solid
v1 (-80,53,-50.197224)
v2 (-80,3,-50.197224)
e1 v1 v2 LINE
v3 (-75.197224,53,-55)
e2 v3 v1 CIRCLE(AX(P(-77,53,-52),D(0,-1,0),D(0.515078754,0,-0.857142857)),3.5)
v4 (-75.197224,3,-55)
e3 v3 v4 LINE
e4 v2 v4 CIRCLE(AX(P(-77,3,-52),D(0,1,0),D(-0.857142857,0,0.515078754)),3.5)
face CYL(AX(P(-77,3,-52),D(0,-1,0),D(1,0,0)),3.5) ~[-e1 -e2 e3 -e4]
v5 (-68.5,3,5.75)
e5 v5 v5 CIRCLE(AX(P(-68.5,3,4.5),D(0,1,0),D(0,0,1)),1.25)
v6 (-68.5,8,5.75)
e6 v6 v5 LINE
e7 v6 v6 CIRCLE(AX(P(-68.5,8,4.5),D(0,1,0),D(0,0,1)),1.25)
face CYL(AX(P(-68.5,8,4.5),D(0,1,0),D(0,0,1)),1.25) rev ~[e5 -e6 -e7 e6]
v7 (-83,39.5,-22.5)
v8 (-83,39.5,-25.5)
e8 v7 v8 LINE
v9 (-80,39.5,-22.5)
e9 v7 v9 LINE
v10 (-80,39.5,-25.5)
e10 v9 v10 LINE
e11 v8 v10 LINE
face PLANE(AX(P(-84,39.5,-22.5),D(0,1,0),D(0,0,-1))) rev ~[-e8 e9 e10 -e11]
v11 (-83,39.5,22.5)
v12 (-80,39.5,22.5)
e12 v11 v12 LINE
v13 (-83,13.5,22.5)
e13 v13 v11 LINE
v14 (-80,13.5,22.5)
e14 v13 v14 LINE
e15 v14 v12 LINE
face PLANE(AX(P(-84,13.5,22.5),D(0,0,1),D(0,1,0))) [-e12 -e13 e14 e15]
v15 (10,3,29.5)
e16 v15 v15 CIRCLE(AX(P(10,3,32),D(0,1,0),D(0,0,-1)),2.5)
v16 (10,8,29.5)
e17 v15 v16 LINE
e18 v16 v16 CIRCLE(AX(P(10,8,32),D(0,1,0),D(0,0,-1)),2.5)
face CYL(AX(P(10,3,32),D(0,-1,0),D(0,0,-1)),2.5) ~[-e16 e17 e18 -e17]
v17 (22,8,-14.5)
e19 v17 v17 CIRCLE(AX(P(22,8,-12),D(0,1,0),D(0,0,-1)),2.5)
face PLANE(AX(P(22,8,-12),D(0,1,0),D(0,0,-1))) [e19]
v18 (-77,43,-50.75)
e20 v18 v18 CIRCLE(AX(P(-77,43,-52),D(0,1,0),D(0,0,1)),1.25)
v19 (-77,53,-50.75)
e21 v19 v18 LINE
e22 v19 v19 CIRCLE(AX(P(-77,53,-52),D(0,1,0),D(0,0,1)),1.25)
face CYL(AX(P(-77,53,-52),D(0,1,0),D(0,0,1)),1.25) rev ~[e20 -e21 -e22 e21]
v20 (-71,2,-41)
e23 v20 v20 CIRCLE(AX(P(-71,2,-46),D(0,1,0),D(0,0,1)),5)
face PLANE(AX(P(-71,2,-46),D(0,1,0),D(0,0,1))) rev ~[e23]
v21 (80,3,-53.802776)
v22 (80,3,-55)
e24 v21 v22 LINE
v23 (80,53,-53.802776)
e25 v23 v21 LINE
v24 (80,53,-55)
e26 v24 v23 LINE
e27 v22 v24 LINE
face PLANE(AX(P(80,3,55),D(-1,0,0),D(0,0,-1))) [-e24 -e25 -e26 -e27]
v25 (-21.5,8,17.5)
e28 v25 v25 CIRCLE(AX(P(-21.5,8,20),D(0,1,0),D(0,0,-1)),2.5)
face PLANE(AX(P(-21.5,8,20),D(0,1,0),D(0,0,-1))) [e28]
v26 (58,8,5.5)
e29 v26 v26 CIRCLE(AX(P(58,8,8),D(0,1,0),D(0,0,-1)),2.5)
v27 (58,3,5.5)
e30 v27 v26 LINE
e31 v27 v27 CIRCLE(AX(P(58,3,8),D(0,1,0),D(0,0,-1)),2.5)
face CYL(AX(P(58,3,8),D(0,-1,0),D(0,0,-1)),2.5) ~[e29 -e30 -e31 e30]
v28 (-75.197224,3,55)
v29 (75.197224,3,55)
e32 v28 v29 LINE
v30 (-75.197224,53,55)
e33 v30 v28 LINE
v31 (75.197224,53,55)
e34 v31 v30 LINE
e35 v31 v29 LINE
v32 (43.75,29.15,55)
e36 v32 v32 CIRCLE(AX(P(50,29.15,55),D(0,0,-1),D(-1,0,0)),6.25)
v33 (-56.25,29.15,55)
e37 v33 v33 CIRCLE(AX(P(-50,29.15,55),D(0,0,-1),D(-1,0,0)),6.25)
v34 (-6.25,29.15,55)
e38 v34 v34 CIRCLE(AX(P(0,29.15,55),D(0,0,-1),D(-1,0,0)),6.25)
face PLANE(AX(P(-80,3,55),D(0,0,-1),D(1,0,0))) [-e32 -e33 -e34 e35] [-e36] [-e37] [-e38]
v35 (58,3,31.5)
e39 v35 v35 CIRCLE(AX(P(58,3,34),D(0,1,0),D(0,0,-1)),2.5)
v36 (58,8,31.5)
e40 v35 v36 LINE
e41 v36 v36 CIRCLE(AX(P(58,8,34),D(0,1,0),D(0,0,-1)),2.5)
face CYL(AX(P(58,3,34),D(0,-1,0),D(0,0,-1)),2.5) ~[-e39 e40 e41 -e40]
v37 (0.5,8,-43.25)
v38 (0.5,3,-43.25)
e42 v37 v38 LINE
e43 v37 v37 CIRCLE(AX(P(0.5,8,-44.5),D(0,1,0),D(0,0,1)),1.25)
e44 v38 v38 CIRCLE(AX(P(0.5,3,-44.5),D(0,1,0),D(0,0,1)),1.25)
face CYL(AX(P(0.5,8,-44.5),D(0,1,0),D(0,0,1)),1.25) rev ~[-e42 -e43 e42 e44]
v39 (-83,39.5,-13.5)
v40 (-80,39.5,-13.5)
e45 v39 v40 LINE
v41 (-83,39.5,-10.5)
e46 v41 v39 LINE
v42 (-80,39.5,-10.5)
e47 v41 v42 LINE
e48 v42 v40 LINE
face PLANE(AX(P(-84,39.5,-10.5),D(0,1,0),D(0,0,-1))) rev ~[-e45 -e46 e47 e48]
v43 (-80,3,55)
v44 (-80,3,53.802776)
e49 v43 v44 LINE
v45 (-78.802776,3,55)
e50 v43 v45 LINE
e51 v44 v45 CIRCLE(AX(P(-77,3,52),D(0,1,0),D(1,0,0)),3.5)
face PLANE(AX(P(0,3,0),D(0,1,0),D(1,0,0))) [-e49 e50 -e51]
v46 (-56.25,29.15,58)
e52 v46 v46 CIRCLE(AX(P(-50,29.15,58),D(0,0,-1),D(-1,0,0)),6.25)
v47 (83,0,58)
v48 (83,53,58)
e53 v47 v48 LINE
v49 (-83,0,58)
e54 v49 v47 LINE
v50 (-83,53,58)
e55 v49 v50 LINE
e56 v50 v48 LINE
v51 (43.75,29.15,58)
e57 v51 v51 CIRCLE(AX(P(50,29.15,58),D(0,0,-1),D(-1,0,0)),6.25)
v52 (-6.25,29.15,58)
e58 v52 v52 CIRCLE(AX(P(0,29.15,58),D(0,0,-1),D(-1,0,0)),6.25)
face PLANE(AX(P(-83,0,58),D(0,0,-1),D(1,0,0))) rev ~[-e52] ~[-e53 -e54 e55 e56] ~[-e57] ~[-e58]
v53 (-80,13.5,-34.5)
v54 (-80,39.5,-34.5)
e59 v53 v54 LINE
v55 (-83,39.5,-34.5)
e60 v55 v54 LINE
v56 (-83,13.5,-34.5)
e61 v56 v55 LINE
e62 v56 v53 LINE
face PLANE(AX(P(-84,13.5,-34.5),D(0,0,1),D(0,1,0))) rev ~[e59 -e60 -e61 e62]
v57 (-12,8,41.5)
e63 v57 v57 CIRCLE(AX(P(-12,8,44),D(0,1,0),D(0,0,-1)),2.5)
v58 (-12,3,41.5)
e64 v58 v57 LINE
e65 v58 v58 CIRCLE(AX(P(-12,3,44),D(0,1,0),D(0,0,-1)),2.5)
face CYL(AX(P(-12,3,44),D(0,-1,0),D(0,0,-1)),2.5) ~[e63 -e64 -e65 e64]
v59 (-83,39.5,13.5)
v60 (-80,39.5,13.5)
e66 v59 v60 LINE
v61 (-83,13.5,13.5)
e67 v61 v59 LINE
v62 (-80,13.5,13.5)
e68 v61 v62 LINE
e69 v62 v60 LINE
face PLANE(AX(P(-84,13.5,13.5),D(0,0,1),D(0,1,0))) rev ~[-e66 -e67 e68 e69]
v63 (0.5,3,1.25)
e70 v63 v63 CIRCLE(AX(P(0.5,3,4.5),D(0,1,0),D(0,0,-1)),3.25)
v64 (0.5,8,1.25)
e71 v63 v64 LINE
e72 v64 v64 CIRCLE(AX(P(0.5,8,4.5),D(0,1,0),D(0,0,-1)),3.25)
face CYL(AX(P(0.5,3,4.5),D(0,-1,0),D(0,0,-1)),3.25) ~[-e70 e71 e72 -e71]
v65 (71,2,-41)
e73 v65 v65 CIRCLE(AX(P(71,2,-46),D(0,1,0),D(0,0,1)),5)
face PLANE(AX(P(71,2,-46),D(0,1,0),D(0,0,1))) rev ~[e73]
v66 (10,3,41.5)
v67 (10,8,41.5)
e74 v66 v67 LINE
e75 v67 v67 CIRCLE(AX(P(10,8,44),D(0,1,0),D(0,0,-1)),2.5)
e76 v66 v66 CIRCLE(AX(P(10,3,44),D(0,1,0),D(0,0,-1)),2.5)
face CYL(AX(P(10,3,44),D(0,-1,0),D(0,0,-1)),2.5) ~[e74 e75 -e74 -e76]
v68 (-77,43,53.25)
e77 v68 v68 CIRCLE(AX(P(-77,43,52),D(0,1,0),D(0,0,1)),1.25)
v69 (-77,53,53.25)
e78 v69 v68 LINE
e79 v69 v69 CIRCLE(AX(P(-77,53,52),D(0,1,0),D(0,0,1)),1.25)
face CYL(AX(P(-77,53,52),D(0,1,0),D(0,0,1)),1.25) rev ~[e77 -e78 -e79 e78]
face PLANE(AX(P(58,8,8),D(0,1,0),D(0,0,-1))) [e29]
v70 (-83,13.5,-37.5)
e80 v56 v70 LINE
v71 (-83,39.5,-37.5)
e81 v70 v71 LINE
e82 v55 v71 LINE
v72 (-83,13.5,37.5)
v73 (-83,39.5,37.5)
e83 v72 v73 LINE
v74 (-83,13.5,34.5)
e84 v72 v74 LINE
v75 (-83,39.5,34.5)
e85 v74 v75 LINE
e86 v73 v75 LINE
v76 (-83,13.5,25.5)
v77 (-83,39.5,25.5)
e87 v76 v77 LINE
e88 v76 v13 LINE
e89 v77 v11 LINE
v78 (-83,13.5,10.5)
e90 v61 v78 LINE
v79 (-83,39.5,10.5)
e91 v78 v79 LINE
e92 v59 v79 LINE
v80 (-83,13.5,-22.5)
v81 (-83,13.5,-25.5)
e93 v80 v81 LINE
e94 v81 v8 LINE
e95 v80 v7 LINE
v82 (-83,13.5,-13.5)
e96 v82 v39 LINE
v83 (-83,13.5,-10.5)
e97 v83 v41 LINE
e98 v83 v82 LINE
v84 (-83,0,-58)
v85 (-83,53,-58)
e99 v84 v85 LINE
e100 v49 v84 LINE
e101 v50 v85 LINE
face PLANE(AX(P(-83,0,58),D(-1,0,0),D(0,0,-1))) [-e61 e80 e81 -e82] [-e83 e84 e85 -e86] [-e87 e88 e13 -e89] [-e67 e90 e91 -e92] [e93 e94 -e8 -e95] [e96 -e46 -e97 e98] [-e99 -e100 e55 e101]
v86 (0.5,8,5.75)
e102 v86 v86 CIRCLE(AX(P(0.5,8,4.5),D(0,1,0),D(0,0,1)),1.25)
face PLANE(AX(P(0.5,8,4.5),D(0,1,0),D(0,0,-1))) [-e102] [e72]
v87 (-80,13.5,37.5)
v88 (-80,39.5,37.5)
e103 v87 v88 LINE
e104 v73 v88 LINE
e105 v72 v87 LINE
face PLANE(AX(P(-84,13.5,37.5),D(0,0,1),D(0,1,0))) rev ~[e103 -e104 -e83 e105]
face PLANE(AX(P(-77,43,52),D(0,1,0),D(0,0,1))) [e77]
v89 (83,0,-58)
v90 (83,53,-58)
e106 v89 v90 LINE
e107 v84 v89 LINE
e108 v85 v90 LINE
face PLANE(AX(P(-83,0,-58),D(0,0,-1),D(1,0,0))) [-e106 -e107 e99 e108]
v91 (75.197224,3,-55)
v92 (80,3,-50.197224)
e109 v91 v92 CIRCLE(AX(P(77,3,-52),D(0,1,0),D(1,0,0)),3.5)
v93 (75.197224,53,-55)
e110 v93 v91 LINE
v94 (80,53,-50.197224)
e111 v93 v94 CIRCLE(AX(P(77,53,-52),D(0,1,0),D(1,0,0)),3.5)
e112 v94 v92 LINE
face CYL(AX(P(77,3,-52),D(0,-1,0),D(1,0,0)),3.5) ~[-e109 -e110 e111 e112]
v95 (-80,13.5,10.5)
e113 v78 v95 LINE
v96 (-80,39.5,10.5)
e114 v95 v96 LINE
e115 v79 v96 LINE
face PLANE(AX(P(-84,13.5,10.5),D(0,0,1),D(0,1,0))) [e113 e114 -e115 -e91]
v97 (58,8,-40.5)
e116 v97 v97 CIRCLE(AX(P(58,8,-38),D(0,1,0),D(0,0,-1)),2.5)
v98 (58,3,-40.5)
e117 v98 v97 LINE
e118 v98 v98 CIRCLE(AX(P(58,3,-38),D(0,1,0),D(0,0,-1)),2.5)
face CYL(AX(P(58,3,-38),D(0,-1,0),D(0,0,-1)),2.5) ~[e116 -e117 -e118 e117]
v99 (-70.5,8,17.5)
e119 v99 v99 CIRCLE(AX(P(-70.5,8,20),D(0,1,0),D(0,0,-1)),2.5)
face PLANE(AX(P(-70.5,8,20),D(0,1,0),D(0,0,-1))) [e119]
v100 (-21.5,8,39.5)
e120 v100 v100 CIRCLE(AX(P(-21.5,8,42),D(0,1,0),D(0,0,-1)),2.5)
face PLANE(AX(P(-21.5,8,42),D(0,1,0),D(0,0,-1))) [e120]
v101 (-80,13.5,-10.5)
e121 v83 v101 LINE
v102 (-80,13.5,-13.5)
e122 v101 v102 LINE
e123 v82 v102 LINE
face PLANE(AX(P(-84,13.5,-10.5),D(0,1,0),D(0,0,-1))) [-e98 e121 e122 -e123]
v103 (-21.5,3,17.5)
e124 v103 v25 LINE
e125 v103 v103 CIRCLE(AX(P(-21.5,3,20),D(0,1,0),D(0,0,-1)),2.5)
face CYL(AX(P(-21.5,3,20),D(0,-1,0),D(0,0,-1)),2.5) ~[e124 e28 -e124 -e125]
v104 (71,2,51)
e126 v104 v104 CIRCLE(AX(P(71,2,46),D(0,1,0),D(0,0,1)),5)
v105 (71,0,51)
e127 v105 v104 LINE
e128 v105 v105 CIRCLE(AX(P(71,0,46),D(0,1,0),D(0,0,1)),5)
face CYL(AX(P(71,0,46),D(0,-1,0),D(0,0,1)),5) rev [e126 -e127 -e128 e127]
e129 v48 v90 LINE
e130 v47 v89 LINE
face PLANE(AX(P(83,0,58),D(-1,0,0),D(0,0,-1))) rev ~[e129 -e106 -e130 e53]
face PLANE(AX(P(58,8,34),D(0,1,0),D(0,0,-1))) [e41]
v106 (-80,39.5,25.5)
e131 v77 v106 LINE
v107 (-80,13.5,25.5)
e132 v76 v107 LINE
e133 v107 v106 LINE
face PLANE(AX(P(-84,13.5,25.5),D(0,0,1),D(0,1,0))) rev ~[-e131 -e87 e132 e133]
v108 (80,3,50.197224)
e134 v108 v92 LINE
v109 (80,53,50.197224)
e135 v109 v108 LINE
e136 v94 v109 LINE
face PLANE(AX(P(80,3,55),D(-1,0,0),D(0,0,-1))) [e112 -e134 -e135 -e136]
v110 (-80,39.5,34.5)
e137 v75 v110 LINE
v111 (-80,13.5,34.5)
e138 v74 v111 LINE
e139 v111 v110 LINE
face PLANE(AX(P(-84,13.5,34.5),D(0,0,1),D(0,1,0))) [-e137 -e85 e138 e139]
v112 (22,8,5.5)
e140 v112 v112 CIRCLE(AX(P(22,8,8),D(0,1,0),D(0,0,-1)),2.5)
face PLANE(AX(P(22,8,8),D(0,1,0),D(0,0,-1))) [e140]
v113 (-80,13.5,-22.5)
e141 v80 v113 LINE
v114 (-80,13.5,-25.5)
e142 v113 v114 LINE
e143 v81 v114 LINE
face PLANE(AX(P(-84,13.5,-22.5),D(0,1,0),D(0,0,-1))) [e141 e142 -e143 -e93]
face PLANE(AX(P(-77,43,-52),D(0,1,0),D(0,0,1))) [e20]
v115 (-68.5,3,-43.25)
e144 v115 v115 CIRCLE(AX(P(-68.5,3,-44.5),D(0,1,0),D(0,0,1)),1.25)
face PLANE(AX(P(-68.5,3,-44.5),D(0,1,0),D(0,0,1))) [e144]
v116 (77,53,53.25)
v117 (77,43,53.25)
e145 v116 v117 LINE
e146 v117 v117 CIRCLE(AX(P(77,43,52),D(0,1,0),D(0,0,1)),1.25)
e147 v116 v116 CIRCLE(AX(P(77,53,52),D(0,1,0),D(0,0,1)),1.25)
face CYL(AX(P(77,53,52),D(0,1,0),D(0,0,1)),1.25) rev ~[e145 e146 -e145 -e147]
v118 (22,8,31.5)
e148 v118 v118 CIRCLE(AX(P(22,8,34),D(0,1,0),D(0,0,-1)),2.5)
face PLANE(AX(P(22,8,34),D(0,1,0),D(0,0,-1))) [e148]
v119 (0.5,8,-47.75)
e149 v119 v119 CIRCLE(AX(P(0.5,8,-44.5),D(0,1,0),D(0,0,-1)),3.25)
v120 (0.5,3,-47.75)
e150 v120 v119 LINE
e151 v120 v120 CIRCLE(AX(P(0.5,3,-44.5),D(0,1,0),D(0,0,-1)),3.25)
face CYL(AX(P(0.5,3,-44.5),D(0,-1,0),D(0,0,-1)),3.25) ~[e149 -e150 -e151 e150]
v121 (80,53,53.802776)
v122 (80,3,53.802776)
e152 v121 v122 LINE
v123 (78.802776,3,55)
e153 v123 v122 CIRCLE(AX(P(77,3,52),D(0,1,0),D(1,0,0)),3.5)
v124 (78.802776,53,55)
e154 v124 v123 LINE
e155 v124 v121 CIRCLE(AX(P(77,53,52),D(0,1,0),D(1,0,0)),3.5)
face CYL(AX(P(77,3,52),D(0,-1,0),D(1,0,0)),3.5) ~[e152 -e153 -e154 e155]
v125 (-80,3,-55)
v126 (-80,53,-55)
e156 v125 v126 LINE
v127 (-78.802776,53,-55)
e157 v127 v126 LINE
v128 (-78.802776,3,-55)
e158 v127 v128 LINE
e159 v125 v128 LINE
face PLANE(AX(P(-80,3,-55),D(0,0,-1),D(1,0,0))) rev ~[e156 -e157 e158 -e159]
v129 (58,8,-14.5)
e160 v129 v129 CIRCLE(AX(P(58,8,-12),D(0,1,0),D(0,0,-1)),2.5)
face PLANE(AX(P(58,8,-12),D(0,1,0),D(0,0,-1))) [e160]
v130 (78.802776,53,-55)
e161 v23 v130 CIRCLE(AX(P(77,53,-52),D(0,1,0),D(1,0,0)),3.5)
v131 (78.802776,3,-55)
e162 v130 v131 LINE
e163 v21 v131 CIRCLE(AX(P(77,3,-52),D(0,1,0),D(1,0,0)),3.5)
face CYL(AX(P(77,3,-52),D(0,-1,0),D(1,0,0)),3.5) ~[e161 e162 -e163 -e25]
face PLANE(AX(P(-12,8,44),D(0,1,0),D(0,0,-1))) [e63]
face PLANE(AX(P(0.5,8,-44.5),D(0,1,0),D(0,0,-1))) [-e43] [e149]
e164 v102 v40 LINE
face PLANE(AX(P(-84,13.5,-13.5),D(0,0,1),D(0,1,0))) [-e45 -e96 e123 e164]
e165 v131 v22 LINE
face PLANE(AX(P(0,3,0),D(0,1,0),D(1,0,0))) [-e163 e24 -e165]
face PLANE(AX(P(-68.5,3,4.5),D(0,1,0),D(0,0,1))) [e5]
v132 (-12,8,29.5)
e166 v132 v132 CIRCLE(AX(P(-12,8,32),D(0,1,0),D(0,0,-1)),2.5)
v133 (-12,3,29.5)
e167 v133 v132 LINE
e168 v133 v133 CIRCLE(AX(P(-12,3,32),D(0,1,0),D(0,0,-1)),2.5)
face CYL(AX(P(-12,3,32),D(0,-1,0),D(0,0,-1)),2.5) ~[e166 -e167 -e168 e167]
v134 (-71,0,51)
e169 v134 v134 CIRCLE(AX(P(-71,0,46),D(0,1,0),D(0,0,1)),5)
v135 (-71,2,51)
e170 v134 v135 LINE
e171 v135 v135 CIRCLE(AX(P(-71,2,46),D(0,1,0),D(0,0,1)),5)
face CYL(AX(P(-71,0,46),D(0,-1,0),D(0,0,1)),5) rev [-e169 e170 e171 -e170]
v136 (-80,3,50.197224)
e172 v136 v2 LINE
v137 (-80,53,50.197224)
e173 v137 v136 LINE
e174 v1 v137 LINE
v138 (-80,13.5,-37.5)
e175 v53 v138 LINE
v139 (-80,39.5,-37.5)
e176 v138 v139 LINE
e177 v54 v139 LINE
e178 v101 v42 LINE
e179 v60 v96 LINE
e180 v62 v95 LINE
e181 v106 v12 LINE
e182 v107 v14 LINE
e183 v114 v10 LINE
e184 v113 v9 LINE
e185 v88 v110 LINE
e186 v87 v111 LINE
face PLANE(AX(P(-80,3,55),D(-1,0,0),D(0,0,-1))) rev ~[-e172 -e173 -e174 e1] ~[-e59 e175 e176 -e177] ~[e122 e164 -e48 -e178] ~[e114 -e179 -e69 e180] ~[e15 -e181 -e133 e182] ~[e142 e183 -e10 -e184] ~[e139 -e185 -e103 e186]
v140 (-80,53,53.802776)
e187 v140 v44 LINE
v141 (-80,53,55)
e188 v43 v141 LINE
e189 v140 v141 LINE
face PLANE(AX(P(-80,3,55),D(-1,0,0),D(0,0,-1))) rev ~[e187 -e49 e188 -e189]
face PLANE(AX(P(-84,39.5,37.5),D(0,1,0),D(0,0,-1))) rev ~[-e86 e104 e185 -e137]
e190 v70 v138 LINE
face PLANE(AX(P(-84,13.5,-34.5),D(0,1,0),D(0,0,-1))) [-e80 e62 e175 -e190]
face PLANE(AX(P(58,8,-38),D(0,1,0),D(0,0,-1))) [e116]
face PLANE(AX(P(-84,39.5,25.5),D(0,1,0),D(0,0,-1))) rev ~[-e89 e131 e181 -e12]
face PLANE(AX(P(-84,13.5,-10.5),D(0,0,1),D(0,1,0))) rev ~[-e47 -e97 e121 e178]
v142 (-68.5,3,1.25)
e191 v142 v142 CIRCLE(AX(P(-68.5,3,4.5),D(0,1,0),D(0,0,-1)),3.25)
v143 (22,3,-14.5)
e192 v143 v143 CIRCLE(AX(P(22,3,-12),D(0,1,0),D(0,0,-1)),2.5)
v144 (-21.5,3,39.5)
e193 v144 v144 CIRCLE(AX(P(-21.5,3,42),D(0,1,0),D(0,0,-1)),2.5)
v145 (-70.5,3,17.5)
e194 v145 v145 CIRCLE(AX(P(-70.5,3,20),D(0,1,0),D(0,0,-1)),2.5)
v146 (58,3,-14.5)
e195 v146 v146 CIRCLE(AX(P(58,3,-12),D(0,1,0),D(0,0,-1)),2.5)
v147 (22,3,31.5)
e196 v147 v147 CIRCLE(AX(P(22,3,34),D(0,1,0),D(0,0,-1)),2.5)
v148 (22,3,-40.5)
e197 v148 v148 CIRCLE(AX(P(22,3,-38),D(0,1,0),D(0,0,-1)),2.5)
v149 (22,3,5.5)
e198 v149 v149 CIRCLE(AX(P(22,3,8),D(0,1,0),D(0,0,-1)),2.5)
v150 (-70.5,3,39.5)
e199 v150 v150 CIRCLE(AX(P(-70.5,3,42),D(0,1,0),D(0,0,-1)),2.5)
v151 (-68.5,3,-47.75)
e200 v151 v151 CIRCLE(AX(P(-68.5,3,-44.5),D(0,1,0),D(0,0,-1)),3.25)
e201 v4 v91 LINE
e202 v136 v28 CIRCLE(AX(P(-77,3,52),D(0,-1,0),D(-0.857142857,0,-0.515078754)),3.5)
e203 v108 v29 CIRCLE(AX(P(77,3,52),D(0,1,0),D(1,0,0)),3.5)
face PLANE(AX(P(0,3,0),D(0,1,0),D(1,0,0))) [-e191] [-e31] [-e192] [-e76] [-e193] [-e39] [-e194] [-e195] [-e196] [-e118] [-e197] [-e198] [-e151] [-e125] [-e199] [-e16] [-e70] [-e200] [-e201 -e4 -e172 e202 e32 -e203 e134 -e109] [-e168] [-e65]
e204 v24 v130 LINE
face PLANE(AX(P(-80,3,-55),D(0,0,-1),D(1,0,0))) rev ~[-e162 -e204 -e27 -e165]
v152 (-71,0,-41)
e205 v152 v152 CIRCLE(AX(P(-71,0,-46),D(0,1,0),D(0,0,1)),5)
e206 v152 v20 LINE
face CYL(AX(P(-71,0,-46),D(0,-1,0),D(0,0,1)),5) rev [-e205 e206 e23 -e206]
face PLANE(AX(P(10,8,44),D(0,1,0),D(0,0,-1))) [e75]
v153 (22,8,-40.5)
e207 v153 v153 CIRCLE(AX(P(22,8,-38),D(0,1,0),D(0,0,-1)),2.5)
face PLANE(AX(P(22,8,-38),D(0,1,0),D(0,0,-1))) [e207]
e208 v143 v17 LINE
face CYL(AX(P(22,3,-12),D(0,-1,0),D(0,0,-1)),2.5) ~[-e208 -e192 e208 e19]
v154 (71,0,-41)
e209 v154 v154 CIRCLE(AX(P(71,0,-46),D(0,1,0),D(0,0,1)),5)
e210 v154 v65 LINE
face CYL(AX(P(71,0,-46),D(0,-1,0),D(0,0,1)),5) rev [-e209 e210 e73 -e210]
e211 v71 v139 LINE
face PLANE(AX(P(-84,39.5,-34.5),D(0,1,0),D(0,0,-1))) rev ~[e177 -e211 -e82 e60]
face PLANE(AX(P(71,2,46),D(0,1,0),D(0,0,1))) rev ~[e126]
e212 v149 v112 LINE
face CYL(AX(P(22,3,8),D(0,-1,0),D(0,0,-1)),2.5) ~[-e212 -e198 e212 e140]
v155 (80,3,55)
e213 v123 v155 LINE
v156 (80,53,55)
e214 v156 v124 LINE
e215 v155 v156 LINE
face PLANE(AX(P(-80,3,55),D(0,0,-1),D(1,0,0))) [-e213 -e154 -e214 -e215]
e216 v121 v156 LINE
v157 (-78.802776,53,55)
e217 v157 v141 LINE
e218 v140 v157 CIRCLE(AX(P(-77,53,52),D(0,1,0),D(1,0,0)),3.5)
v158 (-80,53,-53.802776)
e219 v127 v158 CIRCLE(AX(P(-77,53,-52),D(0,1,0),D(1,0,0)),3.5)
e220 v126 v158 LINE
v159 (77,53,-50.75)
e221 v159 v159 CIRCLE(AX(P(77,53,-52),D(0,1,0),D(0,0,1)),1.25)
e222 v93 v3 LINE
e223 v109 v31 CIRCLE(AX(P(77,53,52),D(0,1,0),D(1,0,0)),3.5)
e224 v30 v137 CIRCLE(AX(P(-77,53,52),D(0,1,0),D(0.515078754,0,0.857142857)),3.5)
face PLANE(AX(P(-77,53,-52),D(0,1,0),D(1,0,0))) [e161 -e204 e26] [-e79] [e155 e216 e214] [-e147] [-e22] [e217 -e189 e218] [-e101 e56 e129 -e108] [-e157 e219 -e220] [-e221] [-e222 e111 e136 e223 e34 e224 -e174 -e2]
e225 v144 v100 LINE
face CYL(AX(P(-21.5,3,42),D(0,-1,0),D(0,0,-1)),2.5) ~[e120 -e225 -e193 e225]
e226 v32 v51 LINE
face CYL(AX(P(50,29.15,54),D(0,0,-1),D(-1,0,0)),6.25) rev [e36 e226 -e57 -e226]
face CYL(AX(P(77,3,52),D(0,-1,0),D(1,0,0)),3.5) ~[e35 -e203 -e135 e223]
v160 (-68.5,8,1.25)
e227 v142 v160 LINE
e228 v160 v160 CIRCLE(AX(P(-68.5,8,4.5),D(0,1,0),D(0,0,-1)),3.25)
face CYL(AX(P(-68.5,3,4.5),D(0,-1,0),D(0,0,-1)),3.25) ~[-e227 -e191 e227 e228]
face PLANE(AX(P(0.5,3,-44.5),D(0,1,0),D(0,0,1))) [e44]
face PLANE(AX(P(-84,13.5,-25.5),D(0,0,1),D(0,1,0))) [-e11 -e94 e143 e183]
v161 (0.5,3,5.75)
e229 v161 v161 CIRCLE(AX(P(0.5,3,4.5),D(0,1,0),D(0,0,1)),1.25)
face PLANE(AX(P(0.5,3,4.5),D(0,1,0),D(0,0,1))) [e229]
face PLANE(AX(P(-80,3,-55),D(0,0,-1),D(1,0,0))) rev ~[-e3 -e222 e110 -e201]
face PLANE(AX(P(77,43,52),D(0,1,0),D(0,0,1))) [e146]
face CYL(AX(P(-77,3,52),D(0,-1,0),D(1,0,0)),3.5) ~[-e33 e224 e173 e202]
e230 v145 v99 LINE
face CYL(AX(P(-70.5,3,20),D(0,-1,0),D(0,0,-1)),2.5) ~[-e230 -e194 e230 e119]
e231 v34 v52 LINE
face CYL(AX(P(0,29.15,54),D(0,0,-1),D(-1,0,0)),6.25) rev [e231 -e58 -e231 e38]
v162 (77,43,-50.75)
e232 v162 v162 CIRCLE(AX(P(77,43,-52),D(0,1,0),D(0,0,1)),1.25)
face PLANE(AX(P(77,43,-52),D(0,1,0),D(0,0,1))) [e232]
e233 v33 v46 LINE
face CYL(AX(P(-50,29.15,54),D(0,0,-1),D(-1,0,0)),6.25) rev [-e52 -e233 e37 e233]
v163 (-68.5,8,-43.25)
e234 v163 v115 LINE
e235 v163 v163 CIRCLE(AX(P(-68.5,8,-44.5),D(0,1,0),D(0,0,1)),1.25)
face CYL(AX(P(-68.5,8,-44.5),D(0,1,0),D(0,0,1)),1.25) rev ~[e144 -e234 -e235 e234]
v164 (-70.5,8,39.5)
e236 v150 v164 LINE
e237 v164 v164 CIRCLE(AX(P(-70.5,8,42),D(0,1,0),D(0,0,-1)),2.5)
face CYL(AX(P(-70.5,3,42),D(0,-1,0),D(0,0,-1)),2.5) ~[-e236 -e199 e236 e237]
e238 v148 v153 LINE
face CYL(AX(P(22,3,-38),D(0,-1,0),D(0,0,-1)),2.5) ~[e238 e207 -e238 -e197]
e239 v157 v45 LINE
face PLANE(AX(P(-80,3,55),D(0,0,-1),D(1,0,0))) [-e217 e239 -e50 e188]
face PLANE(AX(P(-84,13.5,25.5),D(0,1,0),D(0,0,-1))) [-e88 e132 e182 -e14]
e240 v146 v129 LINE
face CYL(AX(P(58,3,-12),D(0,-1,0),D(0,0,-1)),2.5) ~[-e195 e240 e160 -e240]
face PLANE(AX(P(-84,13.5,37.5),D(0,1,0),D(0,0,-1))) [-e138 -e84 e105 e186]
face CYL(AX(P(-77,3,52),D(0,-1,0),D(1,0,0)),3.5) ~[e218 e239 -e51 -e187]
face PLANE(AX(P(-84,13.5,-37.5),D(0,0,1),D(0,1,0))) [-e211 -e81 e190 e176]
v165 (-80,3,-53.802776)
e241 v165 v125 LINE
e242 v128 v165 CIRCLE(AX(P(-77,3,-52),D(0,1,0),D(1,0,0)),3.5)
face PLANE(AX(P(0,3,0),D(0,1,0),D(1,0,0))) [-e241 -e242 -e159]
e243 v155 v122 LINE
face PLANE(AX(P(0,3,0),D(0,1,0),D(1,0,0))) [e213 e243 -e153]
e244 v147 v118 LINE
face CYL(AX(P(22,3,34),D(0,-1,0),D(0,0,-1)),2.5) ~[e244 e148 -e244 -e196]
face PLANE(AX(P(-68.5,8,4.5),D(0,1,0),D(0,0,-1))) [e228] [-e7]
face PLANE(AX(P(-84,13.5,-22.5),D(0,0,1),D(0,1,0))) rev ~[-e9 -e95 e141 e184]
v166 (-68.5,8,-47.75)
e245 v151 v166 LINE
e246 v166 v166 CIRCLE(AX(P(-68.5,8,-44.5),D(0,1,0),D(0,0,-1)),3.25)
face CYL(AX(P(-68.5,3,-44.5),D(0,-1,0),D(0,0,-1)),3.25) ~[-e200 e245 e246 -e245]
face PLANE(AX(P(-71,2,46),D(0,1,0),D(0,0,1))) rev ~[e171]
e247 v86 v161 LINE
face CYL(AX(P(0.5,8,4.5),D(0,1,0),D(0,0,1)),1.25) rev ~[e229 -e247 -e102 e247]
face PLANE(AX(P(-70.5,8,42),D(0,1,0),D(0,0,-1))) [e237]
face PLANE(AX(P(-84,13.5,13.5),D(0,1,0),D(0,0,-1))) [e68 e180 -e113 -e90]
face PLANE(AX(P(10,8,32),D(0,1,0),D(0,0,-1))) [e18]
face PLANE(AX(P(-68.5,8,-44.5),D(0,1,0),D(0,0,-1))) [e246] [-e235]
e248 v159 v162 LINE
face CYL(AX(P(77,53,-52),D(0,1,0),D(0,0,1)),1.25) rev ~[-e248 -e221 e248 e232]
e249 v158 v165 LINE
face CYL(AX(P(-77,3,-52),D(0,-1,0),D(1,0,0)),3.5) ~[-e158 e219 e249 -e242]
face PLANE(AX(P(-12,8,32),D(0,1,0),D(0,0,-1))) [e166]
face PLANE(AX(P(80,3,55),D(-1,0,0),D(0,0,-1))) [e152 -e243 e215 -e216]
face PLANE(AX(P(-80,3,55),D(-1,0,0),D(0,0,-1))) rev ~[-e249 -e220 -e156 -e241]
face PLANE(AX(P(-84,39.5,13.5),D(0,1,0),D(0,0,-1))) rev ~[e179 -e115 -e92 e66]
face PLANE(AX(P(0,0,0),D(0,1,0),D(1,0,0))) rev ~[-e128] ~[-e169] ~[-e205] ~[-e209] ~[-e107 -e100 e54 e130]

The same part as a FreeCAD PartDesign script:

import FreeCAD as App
import Part
import Sketcher

V = App.Vector
Q = App.Units.Quantity

doc = App.newDocument("Part")
params = doc.addObject("Spreadsheet::Sheet", "Params")
for row, (alias, value) in enumerate([
    ("sketch1_width", "166 mm"),
    ("sketch1_height", "116 mm"),
    ("pad1_length", "53 mm"),
    ("sketch2_width", "160 mm"),
    ("sketch2_height", "110 mm"),
    ("pocket1_length", "53 mm"),
    ("sketch3_diameter", "7 mm"),
    ("pad2_length", "50 mm"),
    ("sketch4_diameter", "2.5 mm"),
    ("pocket2_length", "10 mm"),
    ("sketch5_diameter", "6.5 mm"),
    ("pad3_length", "5 mm"),
    ("sketch6_diameter", "2.5 mm"),
    ("pocket3_length", "5 mm"),
    ("sketch7_diameter", "5 mm"),
    ("pad4_length", "5 mm"),
    ("sketch8_diameter", "12.5 mm"),
    ("pocket4_length", "5 mm"),
    ("sketch9_width", "26 mm"),
    ("sketch9_height", "3 mm"),
    ("pocket5_length", "5 mm"),
    ("sketch10_diameter", "10 mm"),
    ("pocket6_length", "2 mm"),
], start=1):
    params.set(f"A{row}", alias)
    params.set(f"B{row}", "=" + value)
    params.setAlias(f"B{row}", alias)

body = doc.addObject("PartDesign::Body", "Body")

# Sketch on XZ plane
sketch1 = body.newObject("Sketcher::SketchObject", "Sketch")
sketch1.AttachmentSupport = (doc.getObject("XZ_Plane"), [""])
sketch1.MapMode = "FlatFace"
sketch1.addGeometry(Part.LineSegment(V(-83, -58, 0), V(-83, 58, 0)), False)
sketch1.addGeometry(Part.LineSegment(V(-83, 58, 0), V(83, 58, 0)), False)
sketch1.addGeometry(Part.LineSegment(V(83, 58, 0), V(83, -58, 0)), False)
sketch1.addGeometry(Part.LineSegment(V(83, -58, 0), V(-83, -58, 0)), False)
sketch1.addConstraint(Sketcher.Constraint("Coincident", 0, 2, 1, 1))
sketch1.addConstraint(Sketcher.Constraint("Coincident", 1, 2, 2, 1))
sketch1.addConstraint(Sketcher.Constraint("Coincident", 2, 2, 3, 1))
sketch1.addConstraint(Sketcher.Constraint("Coincident", 3, 2, 0, 1))
sketch1.addConstraint(Sketcher.Constraint("Vertical", 0))
sketch1.addConstraint(Sketcher.Constraint("Horizontal", 1))
sketch1.addConstraint(Sketcher.Constraint("Vertical", 2))
sketch1.addConstraint(Sketcher.Constraint("Horizontal", 3))
sketch1.addConstraint(Sketcher.Constraint("Symmetric", 0, 2, 2, 2, -1, 1))
sketch1.addConstraint(Sketcher.Constraint("DistanceX", 1, 1, 1, 2, Q("166 mm")))
sketch1.addConstraint(Sketcher.Constraint("DistanceY", 0, 1, 0, 2, Q("116 mm")))
sketch1.setExpression("Constraints[9]", "Params.sketch1_width")
sketch1.setExpression("Constraints[10]", "Params.sketch1_height")
pad1 = body.newObject("PartDesign::Pad", "Pad")
pad1.Profile = sketch1
pad1.setExpression("Length", "Params.pad1_length")
pad1.Reversed = True

# Sketch on XZ plane
sketch2 = body.newObject("Sketcher::SketchObject", "Sketch001")
sketch2.AttachmentSupport = (doc.getObject("XZ_Plane"), [""])
sketch2.MapMode = "FlatFace"
sketch2.AttachmentOffset = App.Placement(V(0, 0, -3), App.Rotation())
sketch2.addGeometry(Part.LineSegment(V(-80, -55, 0), V(-80, 55, 0)), False)
sketch2.addGeometry(Part.LineSegment(V(-80, 55, 0), V(80, 55, 0)), False)
sketch2.addGeometry(Part.LineSegment(V(80, 55, 0), V(80, -55, 0)), False)
sketch2.addGeometry(Part.LineSegment(V(80, -55, 0), V(-80, -55, 0)), False)
sketch2.addConstraint(Sketcher.Constraint("Coincident", 0, 2, 1, 1))
sketch2.addConstraint(Sketcher.Constraint("Coincident", 1, 2, 2, 1))
sketch2.addConstraint(Sketcher.Constraint("Coincident", 2, 2, 3, 1))
sketch2.addConstraint(Sketcher.Constraint("Coincident", 3, 2, 0, 1))
sketch2.addConstraint(Sketcher.Constraint("Vertical", 0))
sketch2.addConstraint(Sketcher.Constraint("Horizontal", 1))
sketch2.addConstraint(Sketcher.Constraint("Vertical", 2))
sketch2.addConstraint(Sketcher.Constraint("Horizontal", 3))
sketch2.addConstraint(Sketcher.Constraint("Symmetric", 0, 2, 2, 2, -1, 1))
sketch2.addConstraint(Sketcher.Constraint("DistanceX", 1, 1, 1, 2, Q("160 mm")))
sketch2.addConstraint(Sketcher.Constraint("DistanceY", 0, 1, 0, 2, Q("110 mm")))
sketch2.setExpression("Constraints[9]", "Params.sketch2_width")
sketch2.setExpression("Constraints[10]", "Params.sketch2_height")
pocket1 = body.newObject("PartDesign::Pocket", "Pocket")
pocket1.Profile = sketch2
pocket1.setExpression("Length", "Params.pocket1_length")

# Sketch on XZ plane
sketch3 = body.newObject("Sketcher::SketchObject", "Sketch002")
sketch3.AttachmentSupport = (doc.getObject("XZ_Plane"), [""])
sketch3.MapMode = "FlatFace"
sketch3.AttachmentOffset = App.Placement(V(0, 0, -3), App.Rotation())
sketch3.addGeometry(Part.Circle(V(-77, -52, 0), V(0, 0, 1), 3.5), False)
sketch3.addGeometry(Part.Circle(V(-77, 52, 0), V(0, 0, 1), 3.5), False)
sketch3.addGeometry(Part.Circle(V(77, -52, 0), V(0, 0, 1), 3.5), False)
sketch3.addGeometry(Part.Circle(V(77, 52, 0), V(0, 0, 1), 3.5), False)
sketch3.addConstraint(Sketcher.Constraint("Equal", 0, 1))
sketch3.addConstraint(Sketcher.Constraint("Equal", 1, 2))
sketch3.addConstraint(Sketcher.Constraint("Equal", 2, 3))
sketch3.addConstraint(Sketcher.Constraint("Symmetric", 1, 3, 2, 3, -1, 1))
sketch3.addConstraint(Sketcher.Constraint("Symmetric", 0, 3, 3, 3, -1, 1))
sketch3.addConstraint(Sketcher.Constraint("Symmetric", 0, 3, 2, 3, -2))
sketch3.addConstraint(Sketcher.Constraint("Diameter", 0, Q("7 mm")))
sketch3.addConstraint(Sketcher.Constraint("DistanceX", 0, 3, -1, 1, Q("77 mm")))
sketch3.addConstraint(Sketcher.Constraint("DistanceY", 0, 3, -1, 1, Q("52 mm")))
sketch3.setExpression("Constraints[6]", "Params.sketch3_diameter")
pad2 = body.newObject("PartDesign::Pad", "Pad001")
pad2.Profile = sketch3
pad2.setExpression("Length", "Params.pad2_length")
pad2.Reversed = True

# Sketch on XZ plane
sketch4 = body.newObject("Sketcher::SketchObject", "Sketch003")
sketch4.AttachmentSupport = (doc.getObject("XZ_Plane"), [""])
sketch4.MapMode = "FlatFace"
sketch4.AttachmentOffset = App.Placement(V(0, 0, -53), App.Rotation())
sketch4.addGeometry(Part.Circle(V(-77, -52, 0), V(0, 0, 1), 1.25), False)
sketch4.addGeometry(Part.Circle(V(-77, 52, 0), V(0, 0, 1), 1.25), False)
sketch4.addGeometry(Part.Circle(V(77, -52, 0), V(0, 0, 1), 1.25), False)
sketch4.addGeometry(Part.Circle(V(77, 52, 0), V(0, 0, 1), 1.25), False)
sketch4.addConstraint(Sketcher.Constraint("Equal", 0, 1))
sketch4.addConstraint(Sketcher.Constraint("Equal", 1, 2))
sketch4.addConstraint(Sketcher.Constraint("Equal", 2, 3))
sketch4.addConstraint(Sketcher.Constraint("Symmetric", 1, 3, 2, 3, -1, 1))
sketch4.addConstraint(Sketcher.Constraint("Symmetric", 0, 3, 3, 3, -1, 1))
sketch4.addConstraint(Sketcher.Constraint("Symmetric", 0, 3, 2, 3, -2))
sketch4.addConstraint(Sketcher.Constraint("Diameter", 0, Q("2.5 mm")))
sketch4.addConstraint(Sketcher.Constraint("DistanceX", 0, 3, -1, 1, Q("77 mm")))
sketch4.addConstraint(Sketcher.Constraint("DistanceY", 0, 3, -1, 1, Q("52 mm")))
sketch4.setExpression("Constraints[6]", "Params.sketch4_diameter")
pocket2 = body.newObject("PartDesign::Pocket", "Pocket001")
pocket2.Profile = sketch4
pocket2.setExpression("Length", "Params.pocket2_length")
pocket2.Reversed = True

# Sketch on XZ plane
sketch5 = body.newObject("Sketcher::SketchObject", "Sketch004")
sketch5.AttachmentSupport = (doc.getObject("XZ_Plane"), [""])
sketch5.MapMode = "FlatFace"
sketch5.AttachmentOffset = App.Placement(V(0, 0, -3), App.Rotation())
sketch5.addGeometry(Part.Circle(V(-68.5, -44.5, 0), V(0, 0, 1), 3.25), False)
sketch5.addGeometry(Part.Circle(V(-68.5, 4.5, 0), V(0, 0, 1), 3.25), False)
sketch5.addGeometry(Part.Circle(V(0.5, -44.5, 0), V(0, 0, 1), 3.25), False)
sketch5.addGeometry(Part.Circle(V(0.5, 4.5, 0), V(0, 0, 1), 3.25), False)
sketch5.addConstraint(Sketcher.Constraint("Equal", 0, 1))
sketch5.addConstraint(Sketcher.Constraint("Equal", 1, 2))
sketch5.addConstraint(Sketcher.Constraint("Equal", 2, 3))
sketch5.addConstraint(Sketcher.Constraint("Horizontal", 0, 3, 2, 3))
sketch5.addConstraint(Sketcher.Constraint("Horizontal", 1, 3, 3, 3))
sketch5.addConstraint(Sketcher.Constraint("Vertical", 0, 3, 1, 3))
sketch5.addConstraint(Sketcher.Constraint("Vertical", 2, 3, 3, 3))
sketch5.addConstraint(Sketcher.Constraint("Diameter", 0, Q("6.5 mm")))
sketch5.addConstraint(Sketcher.Constraint("DistanceY", 0, 3, 1, 3, Q("49 mm")))
sketch5.addConstraint(Sketcher.Constraint("DistanceX", 0, 3, 2, 3, Q("69 mm")))
sketch5.addConstraint(Sketcher.Constraint("DistanceX", 0, 3, -1, 1, Q("68.5 mm")))
sketch5.addConstraint(Sketcher.Constraint("DistanceY", 0, 3, -1, 1, Q("44.5 mm")))
sketch5.setExpression("Constraints[7]", "Params.sketch5_diameter")
pad3 = body.newObject("PartDesign::Pad", "Pad002")
pad3.Profile = sketch5
pad3.setExpression("Length", "Params.pad3_length")
pad3.Reversed = True

# Sketch on XZ plane
sketch6 = body.newObject("Sketcher::SketchObject", "Sketch005")
sketch6.AttachmentSupport = (doc.getObject("XZ_Plane"), [""])
sketch6.MapMode = "FlatFace"
sketch6.AttachmentOffset = App.Placement(V(0, 0, -8), App.Rotation())
sketch6.addGeometry(Part.Circle(V(-68.5, -44.5, 0), V(0, 0, 1), 1.25), False)
sketch6.addGeometry(Part.Circle(V(-68.5, 4.5, 0), V(0, 0, 1), 1.25), False)
sketch6.addGeometry(Part.Circle(V(0.5, -44.5, 0), V(0, 0, 1), 1.25), False)
sketch6.addGeometry(Part.Circle(V(0.5, 4.5, 0), V(0, 0, 1), 1.25), False)
sketch6.addConstraint(Sketcher.Constraint("Equal", 0, 1))
sketch6.addConstraint(Sketcher.Constraint("Equal", 1, 2))
sketch6.addConstraint(Sketcher.Constraint("Equal", 2, 3))
sketch6.addConstraint(Sketcher.Constraint("Horizontal", 0, 3, 2, 3))
sketch6.addConstraint(Sketcher.Constraint("Horizontal", 1, 3, 3, 3))
sketch6.addConstraint(Sketcher.Constraint("Vertical", 0, 3, 1, 3))
sketch6.addConstraint(Sketcher.Constraint("Vertical", 2, 3, 3, 3))
sketch6.addConstraint(Sketcher.Constraint("Diameter", 0, Q("2.5 mm")))
sketch6.addConstraint(Sketcher.Constraint("DistanceY", 0, 3, 1, 3, Q("49 mm")))
sketch6.addConstraint(Sketcher.Constraint("DistanceX", 0, 3, 2, 3, Q("69 mm")))
sketch6.addConstraint(Sketcher.Constraint("DistanceX", 0, 3, -1, 1, Q("68.5 mm")))
sketch6.addConstraint(Sketcher.Constraint("DistanceY", 0, 3, -1, 1, Q("44.5 mm")))
sketch6.setExpression("Constraints[7]", "Params.sketch6_diameter")
pocket3 = body.newObject("PartDesign::Pocket", "Pocket002")
pocket3.Profile = sketch6
pocket3.setExpression("Length", "Params.pocket3_length")
pocket3.Reversed = True

# Sketch on XZ plane
sketch7 = body.newObject("Sketcher::SketchObject", "Sketch006")
sketch7.AttachmentSupport = (doc.getObject("XZ_Plane"), [""])
sketch7.MapMode = "FlatFace"
sketch7.AttachmentOffset = App.Placement(V(0, 0, -3), App.Rotation())
sketch7.addGeometry(Part.Circle(V(-70.5, 20, 0), V(0, 0, 1), 2.5), False)
sketch7.addGeometry(Part.Circle(V(-70.5, 42, 0), V(0, 0, 1), 2.5), False)
sketch7.addGeometry(Part.Circle(V(-21.5, 20, 0), V(0, 0, 1), 2.5), False)
sketch7.addGeometry(Part.Circle(V(-21.5, 42, 0), V(0, 0, 1), 2.5), False)
sketch7.addGeometry(Part.Circle(V(-12, 32, 0), V(0, 0, 1), 2.5), False)
sketch7.addGeometry(Part.Circle(V(-12, 44, 0), V(0, 0, 1), 2.5), False)
sketch7.addGeometry(Part.Circle(V(10, 32, 0), V(0, 0, 1), 2.5), False)
sketch7.addGeometry(Part.Circle(V(10, 44, 0), V(0, 0, 1), 2.5), False)
sketch7.addGeometry(Part.Circle(V(22, -38, 0), V(0, 0, 1), 2.5), False)
sketch7.addGeometry(Part.Circle(V(22, -12, 0), V(0, 0, 1), 2.5), False)
sketch7.addGeometry(Part.Circle(V(58, -38, 0), V(0, 0, 1), 2.5), False)
sketch7.addGeometry(Part.Circle(V(58, -12, 0), V(0, 0, 1), 2.5), False)
sketch7.addGeometry(Part.Circle(V(22, 8, 0), V(0, 0, 1), 2.5), False)
sketch7.addGeometry(Part.Circle(V(22, 34, 0), V(0, 0, 1), 2.5), False)
sketch7.addGeometry(Part.Circle(V(58, 8, 0), V(0, 0, 1), 2.5), False)
sketch7.addGeometry(Part.Circle(V(58, 34, 0), V(0, 0, 1), 2.5), False)
sketch7.addConstraint(Sketcher.Constraint("Equal", 0, 1))
sketch7.addConstraint(Sketcher.Constraint("Equal", 1, 2))
sketch7.addConstraint(Sketcher.Constraint("Equal", 2, 3))
sketch7.addConstraint(Sketcher.Constraint("Equal", 3, 4))
sketch7.addConstraint(Sketcher.Constraint("Equal", 4, 5))
sketch7.addConstraint(Sketcher.Constraint("Equal", 5, 6))
sketch7.addConstraint(Sketcher.Constraint("Equal", 6, 7))
sketch7.addConstraint(Sketcher.Constraint("Equal", 7, 8))
sketch7.addConstraint(Sketcher.Constraint("Equal", 8, 9))
sketch7.addConstraint(Sketcher.Constraint("Equal", 9, 10))
sketch7.addConstraint(Sketcher.Constraint("Equal", 10, 11))
sketch7.addConstraint(Sketcher.Constraint("Equal", 11, 12))
sketch7.addConstraint(Sketcher.Constraint("Equal", 12, 13))
sketch7.addConstraint(Sketcher.Constraint("Equal", 13, 14))
sketch7.addConstraint(Sketcher.Constraint("Equal", 14, 15))
sketch7.addConstraint(Sketcher.Constraint("Horizontal", 0, 3, 2, 3))
sketch7.addConstraint(Sketcher.Constraint("Horizontal", 1, 3, 3, 3))
sketch7.addConstraint(Sketcher.Constraint("Horizontal", 4, 3, 6, 3))
sketch7.addConstraint(Sketcher.Constraint("Horizontal", 5, 3, 7, 3))
sketch7.addConstraint(Sketcher.Constraint("Horizontal", 8, 3, 10, 3))
sketch7.addConstraint(Sketcher.Constraint("Horizontal", 9, 3, 11, 3))
sketch7.addConstraint(Sketcher.Constraint("Horizontal", 12, 3, 14, 3))
sketch7.addConstraint(Sketcher.Constraint("Horizontal", 13, 3, 15, 3))
sketch7.addConstraint(Sketcher.Constraint("Vertical", 0, 3, 1, 3))
sketch7.addConstraint(Sketcher.Constraint("Vertical", 2, 3, 3, 3))
sketch7.addConstraint(Sketcher.Constraint("Vertical", 4, 3, 5, 3))
sketch7.addConstraint(Sketcher.Constraint("Vertical", 6, 3, 7, 3))
sketch7.addConstraint(Sketcher.Constraint("Vertical", 8, 3, 9, 3))
sketch7.addConstraint(Sketcher.Constraint("Vertical", 10, 3, 11, 3))
sketch7.addConstraint(Sketcher.Constraint("Vertical", 9, 3, 12, 3))
sketch7.addConstraint(Sketcher.Constraint("Vertical", 12, 3, 13, 3))
sketch7.addConstraint(Sketcher.Constraint("Vertical", 11, 3, 14, 3))
sketch7.addConstraint(Sketcher.Constraint("Vertical", 14, 3, 15, 3))
sketch7.addConstraint(Sketcher.Constraint("Diameter", 0, Q("5 mm")))
sketch7.addConstraint(Sketcher.Constraint("DistanceY", -1, 1, 0, 3, Q("20 mm")))
sketch7.addConstraint(Sketcher.Constraint("DistanceY", -1, 1, 1, 3, Q("42 mm")))
sketch7.addConstraint(Sketcher.Constraint("DistanceX", 4, 3, -1, 1, Q("12 mm")))
sketch7.addConstraint(Sketcher.Constraint("DistanceY", -1, 1, 4, 3, Q("32 mm")))
sketch7.addConstraint(Sketcher.Constraint("DistanceY", -1, 1, 5, 3, Q("44 mm")))
sketch7.addConstraint(Sketcher.Constraint("DistanceX", -1, 1, 6, 3, Q("10 mm")))
sketch7.addConstraint(Sketcher.Constraint("DistanceX", -1, 1, 8, 3, Q("22 mm")))
sketch7.addConstraint(Sketcher.Constraint("DistanceY", 8, 3, -1, 1, Q("38 mm")))
sketch7.addConstraint(Sketcher.Constraint("DistanceY", 9, 3, -1, 1, Q("12 mm")))
sketch7.addConstraint(Sketcher.Constraint("DistanceX", -1, 1, 10, 3, Q("58 mm")))
sketch7.addConstraint(Sketcher.Constraint("DistanceY", -1, 1, 12, 3, Q("8 mm")))
sketch7.addConstraint(Sketcher.Constraint("DistanceY", -1, 1, 13, 3, Q("34 mm")))
sketch7.addConstraint(Sketcher.Constraint("DistanceX", 0, 3, 2, 3, Q("49 mm")))
sketch7.addConstraint(Sketcher.Constraint("DistanceX", 0, 3, -1, 1, Q("70.5 mm")))
sketch7.setExpression("Constraints[33]", "Params.sketch7_diameter")
pad4 = body.newObject("PartDesign::Pad", "Pad003")
pad4.Profile = sketch7
pad4.setExpression("Length", "Params.pad4_length")
pad4.Reversed = True

# Sketch on XY plane
sketch8 = body.newObject("Sketcher::SketchObject", "Sketch007")
sketch8.AttachmentSupport = (doc.getObject("XY_Plane"), [""])
sketch8.MapMode = "FlatFace"
sketch8.AttachmentOffset = App.Placement(V(0, 0, 54), App.Rotation())
sketch8.addGeometry(Part.Circle(V(-50, 29.15, 0), V(0, 0, 1), 6.25), False)
sketch8.addGeometry(Part.Circle(V(0, 29.15, 0), V(0, 0, 1), 6.25), False)
sketch8.addGeometry(Part.Circle(V(50, 29.15, 0), V(0, 0, 1), 6.25), False)
sketch8.addConstraint(Sketcher.Constraint("Equal", 0, 1))
sketch8.addConstraint(Sketcher.Constraint("Equal", 1, 2))
sketch8.addConstraint(Sketcher.Constraint("Symmetric", 0, 3, 2, 3, -2))
sketch8.addConstraint(Sketcher.Constraint("PointOnObject", 1, 3, -2))
sketch8.addConstraint(Sketcher.Constraint("Horizontal", 0, 3, 1, 3))
sketch8.addConstraint(Sketcher.Constraint("Diameter", 0, Q("12.5 mm")))
sketch8.addConstraint(Sketcher.Constraint("DistanceX", 0, 3, -1, 1, Q("50 mm")))
sketch8.addConstraint(Sketcher.Constraint("DistanceY", -1, 1, 0, 3, Q("29.15 mm")))
sketch8.setExpression("Constraints[5]", "Params.sketch8_diameter")
pocket4 = body.newObject("PartDesign::Pocket", "Pocket003")
pocket4.Profile = sketch8
pocket4.setExpression("Length", "Params.pocket4_length")
pocket4.Reversed = True

# Sketch on YZ plane
sketch9 = body.newObject("Sketcher::SketchObject", "Sketch008")
sketch9.AttachmentSupport = (doc.getObject("YZ_Plane"), [""])
sketch9.MapMode = "FlatFace"
sketch9.AttachmentOffset = App.Placement(V(0, 0, -84), App.Rotation())
sketch9.addGeometry(Part.LineSegment(V(39.5, -34.5, 0), V(13.5, -34.5, 0)), False)
sketch9.addGeometry(Part.LineSegment(V(13.5, -34.5, 0), V(13.5, -37.5, 0)), False)
sketch9.addGeometry(Part.LineSegment(V(13.5, -37.5, 0), V(39.5, -37.5, 0)), False)
sketch9.addGeometry(Part.LineSegment(V(39.5, -37.5, 0), V(39.5, -34.5, 0)), False)
sketch9.addGeometry(Part.LineSegment(V(39.5, -22.5, 0), V(13.5, -22.5, 0)), False)
sketch9.addGeometry(Part.LineSegment(V(13.5, -22.5, 0), V(13.5, -25.5, 0)), False)
sketch9.addGeometry(Part.LineSegment(V(13.5, -25.5, 0), V(39.5, -25.5, 0)), False)
sketch9.addGeometry(Part.LineSegment(V(39.5, -25.5, 0), V(39.5, -22.5, 0)), False)
sketch9.addGeometry(Part.LineSegment(V(39.5, -10.5, 0), V(13.5, -10.5, 0)), False)
sketch9.addGeometry(Part.LineSegment(V(13.5, -10.5, 0), V(13.5, -13.5, 0)), False)
sketch9.addGeometry(Part.LineSegment(V(13.5, -13.5, 0), V(39.5, -13.5, 0)), False)
sketch9.addGeometry(Part.LineSegment(V(39.5, -13.5, 0), V(39.5, -10.5, 0)), False)
sketch9.addGeometry(Part.LineSegment(V(39.5, 13.5, 0), V(13.5, 13.5, 0)), False)
sketch9.addGeometry(Part.LineSegment(V(13.5, 13.5, 0), V(13.5, 10.5, 0)), False)
sketch9.addGeometry(Part.LineSegment(V(13.5, 10.5, 0), V(39.5, 10.5, 0)), False)
sketch9.addGeometry(Part.LineSegment(V(39.5, 10.5, 0), V(39.5, 13.5, 0)), False)
sketch9.addGeometry(Part.LineSegment(V(39.5, 25.5, 0), V(13.5, 25.5, 0)), False)
sketch9.addGeometry(Part.LineSegment(V(13.5, 25.5, 0), V(13.5, 22.5, 0)), False)
sketch9.addGeometry(Part.LineSegment(V(13.5, 22.5, 0), V(39.5, 22.5, 0)), False)
sketch9.addGeometry(Part.LineSegment(V(39.5, 22.5, 0), V(39.5, 25.5, 0)), False)
sketch9.addGeometry(Part.LineSegment(V(39.5, 37.5, 0), V(13.5, 37.5, 0)), False)
sketch9.addGeometry(Part.LineSegment(V(13.5, 37.5, 0), V(13.5, 34.5, 0)), False)
sketch9.addGeometry(Part.LineSegment(V(13.5, 34.5, 0), V(39.5, 34.5, 0)), False)
sketch9.addGeometry(Part.LineSegment(V(39.5, 34.5, 0), V(39.5, 37.5, 0)), False)
sketch9.addConstraint(Sketcher.Constraint("Coincident", 0, 2, 1, 1))
sketch9.addConstraint(Sketcher.Constraint("Coincident", 1, 2, 2, 1))
sketch9.addConstraint(Sketcher.Constraint("Coincident", 2, 2, 3, 1))
sketch9.addConstraint(Sketcher.Constraint("Coincident", 3, 2, 0, 1))
sketch9.addConstraint(Sketcher.Constraint("Coincident", 4, 2, 5, 1))
sketch9.addConstraint(Sketcher.Constraint("Coincident", 5, 2, 6, 1))
sketch9.addConstraint(Sketcher.Constraint("Coincident", 6, 2, 7, 1))
sketch9.addConstraint(Sketcher.Constraint("Coincident", 7, 2, 4, 1))
sketch9.addConstraint(Sketcher.Constraint("Coincident", 8, 2, 9, 1))
sketch9.addConstraint(Sketcher.Constraint("Coincident", 9, 2, 10, 1))
sketch9.addConstraint(Sketcher.Constraint("Coincident", 10, 2, 11, 1))
sketch9.addConstraint(Sketcher.Constraint("Coincident", 11, 2, 8, 1))
sketch9.addConstraint(Sketcher.Constraint("Coincident", 12, 2, 13, 1))
sketch9.addConstraint(Sketcher.Constraint("Coincident", 13, 2, 14, 1))
sketch9.addConstraint(Sketcher.Constraint("Coincident", 14, 2, 15, 1))
sketch9.addConstraint(Sketcher.Constraint("Coincident", 15, 2, 12, 1))
sketch9.addConstraint(Sketcher.Constraint("Coincident", 16, 2, 17, 1))
sketch9.addConstraint(Sketcher.Constraint("Coincident", 17, 2, 18, 1))
sketch9.addConstraint(Sketcher.Constraint("Coincident", 18, 2, 19, 1))
sketch9.addConstraint(Sketcher.Constraint("Coincident", 19, 2, 16, 1))
sketch9.addConstraint(Sketcher.Constraint("Coincident", 20, 2, 21, 1))
sketch9.addConstraint(Sketcher.Constraint("Coincident", 21, 2, 22, 1))
sketch9.addConstraint(Sketcher.Constraint("Coincident", 22, 2, 23, 1))
sketch9.addConstraint(Sketcher.Constraint("Coincident", 23, 2, 20, 1))
sketch9.addConstraint(Sketcher.Constraint("Horizontal", 0))
sketch9.addConstraint(Sketcher.Constraint("Vertical", 1))
sketch9.addConstraint(Sketcher.Constraint("Horizontal", 2))
sketch9.addConstraint(Sketcher.Constraint("Vertical", 3))
sketch9.addConstraint(Sketcher.Constraint("Horizontal", 4))
sketch9.addConstraint(Sketcher.Constraint("Vertical", 5))
sketch9.addConstraint(Sketcher.Constraint("Horizontal", 6))
sketch9.addConstraint(Sketcher.Constraint("Vertical", 7))
sketch9.addConstraint(Sketcher.Constraint("Horizontal", 8))
sketch9.addConstraint(Sketcher.Constraint("Vertical", 9))
sketch9.addConstraint(Sketcher.Constraint("Horizontal", 10))
sketch9.addConstraint(Sketcher.Constraint("Vertical", 11))
sketch9.addConstraint(Sketcher.Constraint("Horizontal", 12))
sketch9.addConstraint(Sketcher.Constraint("Vertical", 13))
sketch9.addConstraint(Sketcher.Constraint("Horizontal", 14))
sketch9.addConstraint(Sketcher.Constraint("Vertical", 15))
sketch9.addConstraint(Sketcher.Constraint("Horizontal", 16))
sketch9.addConstraint(Sketcher.Constraint("Vertical", 17))
sketch9.addConstraint(Sketcher.Constraint("Horizontal", 18))
sketch9.addConstraint(Sketcher.Constraint("Vertical", 19))
sketch9.addConstraint(Sketcher.Constraint("Horizontal", 20))
sketch9.addConstraint(Sketcher.Constraint("Vertical", 21))
sketch9.addConstraint(Sketcher.Constraint("Horizontal", 22))
sketch9.addConstraint(Sketcher.Constraint("Vertical", 23))
sketch9.addConstraint(Sketcher.Constraint("Symmetric", 9, 2, 12, 2, -1))
sketch9.addConstraint(Sketcher.Constraint("Symmetric", 11, 2, 14, 2, -1))
sketch9.addConstraint(Sketcher.Constraint("Symmetric", 5, 2, 16, 2, -1))
sketch9.addConstraint(Sketcher.Constraint("Symmetric", 7, 2, 18, 2, -1))
sketch9.addConstraint(Sketcher.Constraint("Symmetric", 1, 2, 20, 2, -1))
sketch9.addConstraint(Sketcher.Constraint("Symmetric", 3, 2, 22, 2, -1))
sketch9.addConstraint(Sketcher.Constraint("Vertical", 1, 2, 4, 2))
sketch9.addConstraint(Sketcher.Constraint("Vertical", 3, 2, 6, 2))
sketch9.addConstraint(Sketcher.Constraint("Vertical", 5, 2, 8, 2))
sketch9.addConstraint(Sketcher.Constraint("Vertical", 7, 2, 10, 2))
sketch9.addConstraint(Sketcher.Constraint("Equal", 3, 5))
sketch9.addConstraint(Sketcher.Constraint("Equal", 7, 9))
sketch9.addConstraint(Sketcher.Constraint("DistanceX", 0, 2, 0, 1, Q("26 mm")))
sketch9.addConstraint(Sketcher.Constraint("DistanceY", 1, 2, 1, 1, Q("3 mm")))
sketch9.addConstraint(Sketcher.Constraint("DistanceY", 0, 2, 4, 2, Q("12 mm")))
sketch9.addConstraint(Sketcher.Constraint("DistanceY", 4, 2, 8, 2, Q("12 mm")))
sketch9.addConstraint(Sketcher.Constraint("DistanceY", 8, 2, 12, 2, Q("24 mm")))
sketch9.addConstraint(Sketcher.Constraint("DistanceX", -1, 1, 0, 2, Q("13.5 mm")))
sketch9.setExpression("Constraints[60]", "Params.sketch9_width")
sketch9.setExpression("Constraints[61]", "Params.sketch9_height")
pocket5 = body.newObject("PartDesign::Pocket", "Pocket004")
pocket5.Profile = sketch9
pocket5.setExpression("Length", "Params.pocket5_length")
pocket5.Reversed = True

# Sketch on XZ plane
sketch10 = body.newObject("Sketcher::SketchObject", "Sketch009")
sketch10.AttachmentSupport = (doc.getObject("XZ_Plane"), [""])
sketch10.MapMode = "FlatFace"
sketch10.addGeometry(Part.Circle(V(-71, -46, 0), V(0, 0, 1), 5), False)
sketch10.addGeometry(Part.Circle(V(-71, 46, 0), V(0, 0, 1), 5), False)
sketch10.addGeometry(Part.Circle(V(71, -46, 0), V(0, 0, 1), 5), False)
sketch10.addGeometry(Part.Circle(V(71, 46, 0), V(0, 0, 1), 5), False)
sketch10.addConstraint(Sketcher.Constraint("Equal", 0, 1))
sketch10.addConstraint(Sketcher.Constraint("Equal", 1, 2))
sketch10.addConstraint(Sketcher.Constraint("Equal", 2, 3))
sketch10.addConstraint(Sketcher.Constraint("Symmetric", 1, 3, 2, 3, -1, 1))
sketch10.addConstraint(Sketcher.Constraint("Symmetric", 0, 3, 3, 3, -1, 1))
sketch10.addConstraint(Sketcher.Constraint("Symmetric", 0, 3, 2, 3, -2))
sketch10.addConstraint(Sketcher.Constraint("Diameter", 0, Q("10 mm")))
sketch10.addConstraint(Sketcher.Constraint("DistanceX", 0, 3, -1, 1, Q("71 mm")))
sketch10.addConstraint(Sketcher.Constraint("DistanceY", 0, 3, -1, 1, Q("46 mm")))
sketch10.setExpression("Constraints[6]", "Params.sketch10_diameter")
pocket6 = body.newObject("PartDesign::Pocket", "Pocket005")
pocket6.Profile = sketch10
pocket6.setExpression("Length", "Params.pocket6_length")

doc.recompute()
